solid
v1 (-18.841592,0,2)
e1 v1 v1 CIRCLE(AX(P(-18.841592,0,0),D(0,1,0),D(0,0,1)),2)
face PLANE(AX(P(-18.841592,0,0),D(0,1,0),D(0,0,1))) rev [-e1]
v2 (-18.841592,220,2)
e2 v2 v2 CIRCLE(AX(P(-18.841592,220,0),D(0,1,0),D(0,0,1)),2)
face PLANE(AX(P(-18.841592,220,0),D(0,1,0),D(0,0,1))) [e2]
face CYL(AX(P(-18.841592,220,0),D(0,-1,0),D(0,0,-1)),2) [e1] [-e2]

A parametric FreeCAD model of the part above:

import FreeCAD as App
import Part
import Sketcher

V = App.Vector

doc = App.newDocument("Part")
body = doc.addObject("PartDesign::Body", "Body")

# Sketch on XZ plane
sketch1 = doc.addObject("Sketcher::SketchObject", "Sketch")
body.addObject(sketch1)
sketch1.AttachmentSupport = (doc.XZ_Plane, [""])
sketch1.MapMode = "FlatFace"
sketch1.addGeometry(Part.Circle(V(-18.8, 0, 0), V(0, 0, 1), 2), False)
sketch1.addConstraint([
    Sketcher.Constraint("PointOnObject", 0, 3, -1),
    Sketcher.Constraint("Diameter", 0, 4.0),
    Sketcher.Constraint("DistanceX", 0, 3, -1, 1, 18.841592),
])
pad1 = doc.addObject("PartDesign::Pad", "Pad")
body.addObject(pad1)
pad1.Profile = sketch1
pad1.Length = 220
pad1.Reversed = True

doc.recompute()
